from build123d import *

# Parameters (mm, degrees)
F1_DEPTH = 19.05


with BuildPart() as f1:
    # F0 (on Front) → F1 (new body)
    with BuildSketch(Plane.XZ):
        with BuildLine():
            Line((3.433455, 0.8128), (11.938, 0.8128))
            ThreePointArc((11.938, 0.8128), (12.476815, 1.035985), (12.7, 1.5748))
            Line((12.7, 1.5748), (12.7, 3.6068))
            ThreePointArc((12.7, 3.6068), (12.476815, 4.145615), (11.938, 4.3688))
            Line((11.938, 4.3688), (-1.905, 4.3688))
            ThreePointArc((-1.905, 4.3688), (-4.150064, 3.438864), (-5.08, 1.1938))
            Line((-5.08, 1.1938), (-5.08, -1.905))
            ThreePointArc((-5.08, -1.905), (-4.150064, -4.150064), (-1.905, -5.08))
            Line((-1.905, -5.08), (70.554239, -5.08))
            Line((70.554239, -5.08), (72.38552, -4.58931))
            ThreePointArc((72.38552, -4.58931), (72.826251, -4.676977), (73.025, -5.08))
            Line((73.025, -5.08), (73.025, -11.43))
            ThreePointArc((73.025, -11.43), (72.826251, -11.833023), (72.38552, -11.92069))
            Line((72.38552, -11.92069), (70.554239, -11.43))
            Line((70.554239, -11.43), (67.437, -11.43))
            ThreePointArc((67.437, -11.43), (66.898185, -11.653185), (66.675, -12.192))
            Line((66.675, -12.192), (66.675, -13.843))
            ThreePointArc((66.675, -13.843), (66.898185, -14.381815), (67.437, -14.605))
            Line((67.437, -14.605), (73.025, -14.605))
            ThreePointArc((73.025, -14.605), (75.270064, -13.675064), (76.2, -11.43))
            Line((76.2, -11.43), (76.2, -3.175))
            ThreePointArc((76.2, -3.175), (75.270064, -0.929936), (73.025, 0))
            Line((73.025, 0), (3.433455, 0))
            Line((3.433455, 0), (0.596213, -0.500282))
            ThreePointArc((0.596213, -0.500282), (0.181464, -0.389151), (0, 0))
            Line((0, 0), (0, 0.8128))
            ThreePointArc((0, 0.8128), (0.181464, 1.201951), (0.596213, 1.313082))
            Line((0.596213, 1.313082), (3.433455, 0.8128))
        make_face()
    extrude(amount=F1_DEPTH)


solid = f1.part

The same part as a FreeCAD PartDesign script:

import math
import FreeCAD as App
import Part
import Sketcher
Q = App.Units.Quantity

doc = App.newDocument("Part")
params = doc.addObject("Spreadsheet::Sheet", "Params")
for row, (alias, value) in enumerate([
    ("sketch1_radius", "0.03 in"),
    ("sketch1_radius2", "0.02 in"),
    ("sketch1_radius3", "0.125 in"),
    ("sketch1_width", "0.22 in"),
    ("sketch1_height", "0.08 in"),
    ("pad1_length", "0.75 in"),
], start=1):
    params.set(f"A{row}", alias)
    params.set(f"B{row}", "=" + value)
    params.setAlias(f"B{row}", alias)

body = doc.addObject("PartDesign::Body", "Body")

# Sketch on XZ plane
sketch1 = body.newObject("Sketcher::SketchObject", "Sketch")
sketch1.AttachmentSupport = (doc.getObject("XZ_Plane"), [""])
sketch1.MapMode = "FlatFace"
sketch1.addGeometry(Part.LineSegment(App.Vector(3.4, 0.8, 0), App.Vector(11.9, 0.8, 0)), False)
sketch1.addGeometry(Part.ArcOfCircle(Part.Circle(App.Vector(11.9, 1.6, 0), App.Vector(0, 0, 1), 0.8), math.radians(-90), math.radians(0)), False)
sketch1.addGeometry(Part.LineSegment(App.Vector(12.7, 1.6, 0), App.Vector(12.7, 3.6, 0)), False)
sketch1.addGeometry(Part.ArcOfCircle(Part.Circle(App.Vector(11.9, 3.6, 0), App.Vector(0, 0, 1), 0.8), math.radians(0), math.radians(90)), False)
sketch1.addGeometry(Part.LineSegment(App.Vector(11.9, 4.4, 0), App.Vector(-1.9, 4.4, 0)), False)
sketch1.addGeometry(Part.ArcOfCircle(Part.Circle(App.Vector(-1.9, 1.2, 0), App.Vector(0, 0, 1), 3.2), math.radians(90), math.radians(180)), False)
sketch1.addGeometry(Part.LineSegment(App.Vector(-5.1, 1.2, 0), App.Vector(-5.1, -1.9, 0)), False)
sketch1.addGeometry(Part.ArcOfCircle(Part.Circle(App.Vector(-1.9, -1.9, 0), App.Vector(0, 0, 1), 3.2), math.radians(-180), math.radians(-90)), False)
sketch1.addGeometry(Part.LineSegment(App.Vector(-1.9, -5.1, 0), App.Vector(70.6, -5.1, 0)), False)
sketch1.addGeometry(Part.LineSegment(App.Vector(70.6, -5.1, 0), App.Vector(72.4, -4.6, 0)), False)
sketch1.addGeometry(Part.ArcOfCircle(Part.Circle(App.Vector(72.5, -5.1, 0), App.Vector(0, 0, 1), 0.5), math.radians(0), math.radians(105)), False)
sketch1.addGeometry(Part.LineSegment(App.Vector(73, -5.1, 0), App.Vector(73, -11.4, 0)), False)
sketch1.addGeometry(Part.ArcOfCircle(Part.Circle(App.Vector(72.5, -11.4, 0), App.Vector(0, 0, 1), 0.5), math.radians(-105), math.radians(0)), False)
sketch1.addGeometry(Part.LineSegment(App.Vector(72.4, -11.9, 0), App.Vector(70.6, -11.4, 0)), False)
sketch1.addGeometry(Part.LineSegment(App.Vector(70.6, -11.4, 0), App.Vector(67.4, -11.4, 0)), False)
sketch1.addGeometry(Part.ArcOfCircle(Part.Circle(App.Vector(67.4, -12.2, 0), App.Vector(0, 0, 1), 0.8), math.radians(90), math.radians(180)), False)
sketch1.addGeometry(Part.LineSegment(App.Vector(66.7, -12.2, 0), App.Vector(66.7, -13.8, 0)), False)
sketch1.addGeometry(Part.ArcOfCircle(Part.Circle(App.Vector(67.4, -13.8, 0), App.Vector(0, 0, 1), 0.8), math.radians(-180), math.radians(-90)), False)
sketch1.addGeometry(Part.LineSegment(App.Vector(67.4, -14.6, 0), App.Vector(73, -14.6, 0)), False)
sketch1.addGeometry(Part.ArcOfCircle(Part.Circle(App.Vector(73, -11.4, 0), App.Vector(0, 0, 1), 3.2), math.radians(-90), math.radians(0)), False)
sketch1.addGeometry(Part.LineSegment(App.Vector(76.2, -11.4, 0), App.Vector(76.2, -3.2, 0)), False)
sketch1.addGeometry(Part.ArcOfCircle(Part.Circle(App.Vector(73, -3.2, 0), App.Vector(0, 0, 1), 3.2), math.radians(0), math.radians(90)), False)
sketch1.addGeometry(Part.LineSegment(App.Vector(73, 0, 0), App.Vector(3.4, 0, 0)), False)
sketch1.addGeometry(Part.LineSegment(App.Vector(3.4, 0, 0), App.Vector(0.6, -0.5, 0)), False)
sketch1.addGeometry(Part.ArcOfCircle(Part.Circle(App.Vector(0.5, 0, 0), App.Vector(0, 0, 1), 0.5), math.radians(180), math.radians(280)), False)
sketch1.addGeometry(Part.LineSegment(App.Vector(0, 0, 0), App.Vector(0, 0.8, 0)), False)
sketch1.addGeometry(Part.ArcOfCircle(Part.Circle(App.Vector(0.5, 0.8, 0), App.Vector(0, 0, 1), 0.5), math.radians(80), math.radians(180)), False)
sketch1.addGeometry(Part.LineSegment(App.Vector(0.6, 1.3, 0), App.Vector(3.4, 0.8, 0)), False)
sketch1.addConstraint(Sketcher.Constraint("Tangent", 0, 2, 1, 1))
sketch1.addConstraint(Sketcher.Constraint("Tangent", 1, 2, 2, 1))
sketch1.addConstraint(Sketcher.Constraint("Tangent", 2, 2, 3, 1))
sketch1.addConstraint(Sketcher.Constraint("Tangent", 3, 2, 4, 1))
sketch1.addConstraint(Sketcher.Constraint("Tangent", 4, 2, 5, 1))
sketch1.addConstraint(Sketcher.Constraint("Tangent", 5, 2, 6, 1))
sketch1.addConstraint(Sketcher.Constraint("Tangent", 6, 2, 7, 1))
sketch1.addConstraint(Sketcher.Constraint("Tangent", 7, 2, 8, 1))
sketch1.addConstraint(Sketcher.Constraint("Coincident", 8, 2, 9, 1))
sketch1.addConstraint(Sketcher.Constraint("Tangent", 9, 2, 10, 2))
sketch1.addConstraint(Sketcher.Constraint("Tangent", 10, 1, 11, 1))
sketch1.addConstraint(Sketcher.Constraint("Tangent", 11, 2, 12, 2))
sketch1.addConstraint(Sketcher.Constraint("Tangent", 12, 1, 13, 1))
sketch1.addConstraint(Sketcher.Constraint("Coincident", 13, 2, 14, 1))
sketch1.addConstraint(Sketcher.Constraint("Tangent", 14, 2, 15, 1))
sketch1.addConstraint(Sketcher.Constraint("Tangent", 15, 2, 16, 1))
sketch1.addConstraint(Sketcher.Constraint("Tangent", 16, 2, 17, 1))
sketch1.addConstraint(Sketcher.Constraint("Tangent", 17, 2, 18, 1))
sketch1.addConstraint(Sketcher.Constraint("Tangent", 18, 2, 19, 1))
sketch1.addConstraint(Sketcher.Constraint("Tangent", 19, 2, 20, 1))
sketch1.addConstraint(Sketcher.Constraint("Tangent", 20, 2, 21, 1))
sketch1.addConstraint(Sketcher.Constraint("Tangent", 21, 2, 22, 1))
sketch1.addConstraint(Sketcher.Constraint("Coincident", 22, 2, 23, 1))
sketch1.addConstraint(Sketcher.Constraint("Tangent", 23, 2, 24, 2))
sketch1.addConstraint(Sketcher.Constraint("Tangent", 24, 1, 25, 1))
sketch1.addConstraint(Sketcher.Constraint("Tangent", 25, 2, 26, 2))
sketch1.addConstraint(Sketcher.Constraint("Tangent", 26, 1, 27, 1))
sketch1.addConstraint(Sketcher.Constraint("Coincident", 27, 2, 0, 1))
sketch1.addConstraint(Sketcher.Constraint("Horizontal", 0))
sketch1.addConstraint(Sketcher.Constraint("Vertical", 2))
sketch1.addConstraint(Sketcher.Constraint("Horizontal", 4))
sketch1.addConstraint(Sketcher.Constraint("Vertical", 6))
sketch1.addConstraint(Sketcher.Constraint("Horizontal", 8))
sketch1.addConstraint(Sketcher.Constraint("Vertical", 11))
sketch1.addConstraint(Sketcher.Constraint("Horizontal", 14))
sketch1.addConstraint(Sketcher.Constraint("Vertical", 16))
sketch1.addConstraint(Sketcher.Constraint("Horizontal", 18))
sketch1.addConstraint(Sketcher.Constraint("Vertical", 20))
sketch1.addConstraint(Sketcher.Constraint("Horizontal", 22))
sketch1.addConstraint(Sketcher.Constraint("Vertical", 25))
sketch1.addConstraint(Sketcher.Constraint("Coincident", 24, 1, -1, 1))
sketch1.addConstraint(Sketcher.Constraint("Coincident", 11, 2, 19, 3))
sketch1.addConstraint(Sketcher.Constraint("Equal", 1, 3))
sketch1.addConstraint(Sketcher.Constraint("Equal", 5, 7))
sketch1.addConstraint(Sketcher.Constraint("Equal", 10, 12))
sketch1.addConstraint(Sketcher.Constraint("Equal", 3, 15))
sketch1.addConstraint(Sketcher.Constraint("Equal", 15, 17))
sketch1.addConstraint(Sketcher.Constraint("Equal", 7, 19))
sketch1.addConstraint(Sketcher.Constraint("Equal", 19, 21))
sketch1.addConstraint(Sketcher.Constraint("Equal", 12, 24))
sketch1.addConstraint(Sketcher.Constraint("Equal", 24, 26))
sketch1.addConstraint(Sketcher.Constraint("PointOnObject", 21, 2, -1))
sketch1.addConstraint(Sketcher.Constraint("Horizontal", 26, 3, 0, 2))
sketch1.addConstraint(Sketcher.Constraint("Horizontal", 10, 3, 7, 2))
sketch1.addConstraint(Sketcher.Constraint("Horizontal", 11, 2, 13, 2))
sketch1.addConstraint(Sketcher.Constraint("Vertical", 9, 2, 12, 1))
sketch1.addConstraint(Sketcher.Constraint("Vertical", 23, 2, 26, 1))
sketch1.addConstraint(Sketcher.Constraint("Radius", 1, Q("0.03 in")))
sketch1.addConstraint(Sketcher.Constraint("Radius", 10, Q("0.02 in")))
sketch1.addConstraint(Sketcher.Constraint("DistanceX", -1, 1, 19, 2, Q("3 in")))
sketch1.addConstraint(Sketcher.Constraint("Angle", 9, Q("14.999992 deg")))
sketch1.addConstraint(Sketcher.Constraint("Angle", 23, Q("-170.000006 deg")))
sketch1.addConstraint(Sketcher.Constraint("Radius", 5, Q("0.125 in")))
sketch1.addConstraint(Sketcher.Constraint("DistanceX", 18, 1, 18, 2, Q("0.22 in")))
sketch1.addConstraint(Sketcher.Constraint("DistanceY", 2, 1, 2, 2, Q("0.08 in")))
sketch1.addConstraint(Sketcher.Constraint("DistanceY", 11, 2, 11, 1, Q("0.25 in")))
sketch1.addConstraint(Sketcher.Constraint("DistanceY", 10, 3, -1, 1, Q("0.2 in")))
sketch1.addConstraint(Sketcher.Constraint("DistanceX", -1, 1, 1, 2, Q("0.5 in")))
sketch1.addConstraint(Sketcher.Constraint("DistanceX", 5, 2, -1, 1, Q("0.2 in")))
sketch1.addConstraint(Sketcher.Constraint("DistanceY", 6, 2, 6, 1, Q("0.122 in")))
sketch1.setExpression("Constraints[57]", "Params.sketch1_radius")
sketch1.setExpression("Constraints[58]", "Params.sketch1_radius2")
sketch1.setExpression("Constraints[62]", "Params.sketch1_radius3")
sketch1.setExpression("Constraints[63]", "Params.sketch1_width")
sketch1.setExpression("Constraints[64]", "Params.sketch1_height")
pad1 = body.newObject("PartDesign::Pad", "Pad")
pad1.Profile = sketch1
pad1.setExpression("Length", "Params.pad1_length")

doc.recompute()
